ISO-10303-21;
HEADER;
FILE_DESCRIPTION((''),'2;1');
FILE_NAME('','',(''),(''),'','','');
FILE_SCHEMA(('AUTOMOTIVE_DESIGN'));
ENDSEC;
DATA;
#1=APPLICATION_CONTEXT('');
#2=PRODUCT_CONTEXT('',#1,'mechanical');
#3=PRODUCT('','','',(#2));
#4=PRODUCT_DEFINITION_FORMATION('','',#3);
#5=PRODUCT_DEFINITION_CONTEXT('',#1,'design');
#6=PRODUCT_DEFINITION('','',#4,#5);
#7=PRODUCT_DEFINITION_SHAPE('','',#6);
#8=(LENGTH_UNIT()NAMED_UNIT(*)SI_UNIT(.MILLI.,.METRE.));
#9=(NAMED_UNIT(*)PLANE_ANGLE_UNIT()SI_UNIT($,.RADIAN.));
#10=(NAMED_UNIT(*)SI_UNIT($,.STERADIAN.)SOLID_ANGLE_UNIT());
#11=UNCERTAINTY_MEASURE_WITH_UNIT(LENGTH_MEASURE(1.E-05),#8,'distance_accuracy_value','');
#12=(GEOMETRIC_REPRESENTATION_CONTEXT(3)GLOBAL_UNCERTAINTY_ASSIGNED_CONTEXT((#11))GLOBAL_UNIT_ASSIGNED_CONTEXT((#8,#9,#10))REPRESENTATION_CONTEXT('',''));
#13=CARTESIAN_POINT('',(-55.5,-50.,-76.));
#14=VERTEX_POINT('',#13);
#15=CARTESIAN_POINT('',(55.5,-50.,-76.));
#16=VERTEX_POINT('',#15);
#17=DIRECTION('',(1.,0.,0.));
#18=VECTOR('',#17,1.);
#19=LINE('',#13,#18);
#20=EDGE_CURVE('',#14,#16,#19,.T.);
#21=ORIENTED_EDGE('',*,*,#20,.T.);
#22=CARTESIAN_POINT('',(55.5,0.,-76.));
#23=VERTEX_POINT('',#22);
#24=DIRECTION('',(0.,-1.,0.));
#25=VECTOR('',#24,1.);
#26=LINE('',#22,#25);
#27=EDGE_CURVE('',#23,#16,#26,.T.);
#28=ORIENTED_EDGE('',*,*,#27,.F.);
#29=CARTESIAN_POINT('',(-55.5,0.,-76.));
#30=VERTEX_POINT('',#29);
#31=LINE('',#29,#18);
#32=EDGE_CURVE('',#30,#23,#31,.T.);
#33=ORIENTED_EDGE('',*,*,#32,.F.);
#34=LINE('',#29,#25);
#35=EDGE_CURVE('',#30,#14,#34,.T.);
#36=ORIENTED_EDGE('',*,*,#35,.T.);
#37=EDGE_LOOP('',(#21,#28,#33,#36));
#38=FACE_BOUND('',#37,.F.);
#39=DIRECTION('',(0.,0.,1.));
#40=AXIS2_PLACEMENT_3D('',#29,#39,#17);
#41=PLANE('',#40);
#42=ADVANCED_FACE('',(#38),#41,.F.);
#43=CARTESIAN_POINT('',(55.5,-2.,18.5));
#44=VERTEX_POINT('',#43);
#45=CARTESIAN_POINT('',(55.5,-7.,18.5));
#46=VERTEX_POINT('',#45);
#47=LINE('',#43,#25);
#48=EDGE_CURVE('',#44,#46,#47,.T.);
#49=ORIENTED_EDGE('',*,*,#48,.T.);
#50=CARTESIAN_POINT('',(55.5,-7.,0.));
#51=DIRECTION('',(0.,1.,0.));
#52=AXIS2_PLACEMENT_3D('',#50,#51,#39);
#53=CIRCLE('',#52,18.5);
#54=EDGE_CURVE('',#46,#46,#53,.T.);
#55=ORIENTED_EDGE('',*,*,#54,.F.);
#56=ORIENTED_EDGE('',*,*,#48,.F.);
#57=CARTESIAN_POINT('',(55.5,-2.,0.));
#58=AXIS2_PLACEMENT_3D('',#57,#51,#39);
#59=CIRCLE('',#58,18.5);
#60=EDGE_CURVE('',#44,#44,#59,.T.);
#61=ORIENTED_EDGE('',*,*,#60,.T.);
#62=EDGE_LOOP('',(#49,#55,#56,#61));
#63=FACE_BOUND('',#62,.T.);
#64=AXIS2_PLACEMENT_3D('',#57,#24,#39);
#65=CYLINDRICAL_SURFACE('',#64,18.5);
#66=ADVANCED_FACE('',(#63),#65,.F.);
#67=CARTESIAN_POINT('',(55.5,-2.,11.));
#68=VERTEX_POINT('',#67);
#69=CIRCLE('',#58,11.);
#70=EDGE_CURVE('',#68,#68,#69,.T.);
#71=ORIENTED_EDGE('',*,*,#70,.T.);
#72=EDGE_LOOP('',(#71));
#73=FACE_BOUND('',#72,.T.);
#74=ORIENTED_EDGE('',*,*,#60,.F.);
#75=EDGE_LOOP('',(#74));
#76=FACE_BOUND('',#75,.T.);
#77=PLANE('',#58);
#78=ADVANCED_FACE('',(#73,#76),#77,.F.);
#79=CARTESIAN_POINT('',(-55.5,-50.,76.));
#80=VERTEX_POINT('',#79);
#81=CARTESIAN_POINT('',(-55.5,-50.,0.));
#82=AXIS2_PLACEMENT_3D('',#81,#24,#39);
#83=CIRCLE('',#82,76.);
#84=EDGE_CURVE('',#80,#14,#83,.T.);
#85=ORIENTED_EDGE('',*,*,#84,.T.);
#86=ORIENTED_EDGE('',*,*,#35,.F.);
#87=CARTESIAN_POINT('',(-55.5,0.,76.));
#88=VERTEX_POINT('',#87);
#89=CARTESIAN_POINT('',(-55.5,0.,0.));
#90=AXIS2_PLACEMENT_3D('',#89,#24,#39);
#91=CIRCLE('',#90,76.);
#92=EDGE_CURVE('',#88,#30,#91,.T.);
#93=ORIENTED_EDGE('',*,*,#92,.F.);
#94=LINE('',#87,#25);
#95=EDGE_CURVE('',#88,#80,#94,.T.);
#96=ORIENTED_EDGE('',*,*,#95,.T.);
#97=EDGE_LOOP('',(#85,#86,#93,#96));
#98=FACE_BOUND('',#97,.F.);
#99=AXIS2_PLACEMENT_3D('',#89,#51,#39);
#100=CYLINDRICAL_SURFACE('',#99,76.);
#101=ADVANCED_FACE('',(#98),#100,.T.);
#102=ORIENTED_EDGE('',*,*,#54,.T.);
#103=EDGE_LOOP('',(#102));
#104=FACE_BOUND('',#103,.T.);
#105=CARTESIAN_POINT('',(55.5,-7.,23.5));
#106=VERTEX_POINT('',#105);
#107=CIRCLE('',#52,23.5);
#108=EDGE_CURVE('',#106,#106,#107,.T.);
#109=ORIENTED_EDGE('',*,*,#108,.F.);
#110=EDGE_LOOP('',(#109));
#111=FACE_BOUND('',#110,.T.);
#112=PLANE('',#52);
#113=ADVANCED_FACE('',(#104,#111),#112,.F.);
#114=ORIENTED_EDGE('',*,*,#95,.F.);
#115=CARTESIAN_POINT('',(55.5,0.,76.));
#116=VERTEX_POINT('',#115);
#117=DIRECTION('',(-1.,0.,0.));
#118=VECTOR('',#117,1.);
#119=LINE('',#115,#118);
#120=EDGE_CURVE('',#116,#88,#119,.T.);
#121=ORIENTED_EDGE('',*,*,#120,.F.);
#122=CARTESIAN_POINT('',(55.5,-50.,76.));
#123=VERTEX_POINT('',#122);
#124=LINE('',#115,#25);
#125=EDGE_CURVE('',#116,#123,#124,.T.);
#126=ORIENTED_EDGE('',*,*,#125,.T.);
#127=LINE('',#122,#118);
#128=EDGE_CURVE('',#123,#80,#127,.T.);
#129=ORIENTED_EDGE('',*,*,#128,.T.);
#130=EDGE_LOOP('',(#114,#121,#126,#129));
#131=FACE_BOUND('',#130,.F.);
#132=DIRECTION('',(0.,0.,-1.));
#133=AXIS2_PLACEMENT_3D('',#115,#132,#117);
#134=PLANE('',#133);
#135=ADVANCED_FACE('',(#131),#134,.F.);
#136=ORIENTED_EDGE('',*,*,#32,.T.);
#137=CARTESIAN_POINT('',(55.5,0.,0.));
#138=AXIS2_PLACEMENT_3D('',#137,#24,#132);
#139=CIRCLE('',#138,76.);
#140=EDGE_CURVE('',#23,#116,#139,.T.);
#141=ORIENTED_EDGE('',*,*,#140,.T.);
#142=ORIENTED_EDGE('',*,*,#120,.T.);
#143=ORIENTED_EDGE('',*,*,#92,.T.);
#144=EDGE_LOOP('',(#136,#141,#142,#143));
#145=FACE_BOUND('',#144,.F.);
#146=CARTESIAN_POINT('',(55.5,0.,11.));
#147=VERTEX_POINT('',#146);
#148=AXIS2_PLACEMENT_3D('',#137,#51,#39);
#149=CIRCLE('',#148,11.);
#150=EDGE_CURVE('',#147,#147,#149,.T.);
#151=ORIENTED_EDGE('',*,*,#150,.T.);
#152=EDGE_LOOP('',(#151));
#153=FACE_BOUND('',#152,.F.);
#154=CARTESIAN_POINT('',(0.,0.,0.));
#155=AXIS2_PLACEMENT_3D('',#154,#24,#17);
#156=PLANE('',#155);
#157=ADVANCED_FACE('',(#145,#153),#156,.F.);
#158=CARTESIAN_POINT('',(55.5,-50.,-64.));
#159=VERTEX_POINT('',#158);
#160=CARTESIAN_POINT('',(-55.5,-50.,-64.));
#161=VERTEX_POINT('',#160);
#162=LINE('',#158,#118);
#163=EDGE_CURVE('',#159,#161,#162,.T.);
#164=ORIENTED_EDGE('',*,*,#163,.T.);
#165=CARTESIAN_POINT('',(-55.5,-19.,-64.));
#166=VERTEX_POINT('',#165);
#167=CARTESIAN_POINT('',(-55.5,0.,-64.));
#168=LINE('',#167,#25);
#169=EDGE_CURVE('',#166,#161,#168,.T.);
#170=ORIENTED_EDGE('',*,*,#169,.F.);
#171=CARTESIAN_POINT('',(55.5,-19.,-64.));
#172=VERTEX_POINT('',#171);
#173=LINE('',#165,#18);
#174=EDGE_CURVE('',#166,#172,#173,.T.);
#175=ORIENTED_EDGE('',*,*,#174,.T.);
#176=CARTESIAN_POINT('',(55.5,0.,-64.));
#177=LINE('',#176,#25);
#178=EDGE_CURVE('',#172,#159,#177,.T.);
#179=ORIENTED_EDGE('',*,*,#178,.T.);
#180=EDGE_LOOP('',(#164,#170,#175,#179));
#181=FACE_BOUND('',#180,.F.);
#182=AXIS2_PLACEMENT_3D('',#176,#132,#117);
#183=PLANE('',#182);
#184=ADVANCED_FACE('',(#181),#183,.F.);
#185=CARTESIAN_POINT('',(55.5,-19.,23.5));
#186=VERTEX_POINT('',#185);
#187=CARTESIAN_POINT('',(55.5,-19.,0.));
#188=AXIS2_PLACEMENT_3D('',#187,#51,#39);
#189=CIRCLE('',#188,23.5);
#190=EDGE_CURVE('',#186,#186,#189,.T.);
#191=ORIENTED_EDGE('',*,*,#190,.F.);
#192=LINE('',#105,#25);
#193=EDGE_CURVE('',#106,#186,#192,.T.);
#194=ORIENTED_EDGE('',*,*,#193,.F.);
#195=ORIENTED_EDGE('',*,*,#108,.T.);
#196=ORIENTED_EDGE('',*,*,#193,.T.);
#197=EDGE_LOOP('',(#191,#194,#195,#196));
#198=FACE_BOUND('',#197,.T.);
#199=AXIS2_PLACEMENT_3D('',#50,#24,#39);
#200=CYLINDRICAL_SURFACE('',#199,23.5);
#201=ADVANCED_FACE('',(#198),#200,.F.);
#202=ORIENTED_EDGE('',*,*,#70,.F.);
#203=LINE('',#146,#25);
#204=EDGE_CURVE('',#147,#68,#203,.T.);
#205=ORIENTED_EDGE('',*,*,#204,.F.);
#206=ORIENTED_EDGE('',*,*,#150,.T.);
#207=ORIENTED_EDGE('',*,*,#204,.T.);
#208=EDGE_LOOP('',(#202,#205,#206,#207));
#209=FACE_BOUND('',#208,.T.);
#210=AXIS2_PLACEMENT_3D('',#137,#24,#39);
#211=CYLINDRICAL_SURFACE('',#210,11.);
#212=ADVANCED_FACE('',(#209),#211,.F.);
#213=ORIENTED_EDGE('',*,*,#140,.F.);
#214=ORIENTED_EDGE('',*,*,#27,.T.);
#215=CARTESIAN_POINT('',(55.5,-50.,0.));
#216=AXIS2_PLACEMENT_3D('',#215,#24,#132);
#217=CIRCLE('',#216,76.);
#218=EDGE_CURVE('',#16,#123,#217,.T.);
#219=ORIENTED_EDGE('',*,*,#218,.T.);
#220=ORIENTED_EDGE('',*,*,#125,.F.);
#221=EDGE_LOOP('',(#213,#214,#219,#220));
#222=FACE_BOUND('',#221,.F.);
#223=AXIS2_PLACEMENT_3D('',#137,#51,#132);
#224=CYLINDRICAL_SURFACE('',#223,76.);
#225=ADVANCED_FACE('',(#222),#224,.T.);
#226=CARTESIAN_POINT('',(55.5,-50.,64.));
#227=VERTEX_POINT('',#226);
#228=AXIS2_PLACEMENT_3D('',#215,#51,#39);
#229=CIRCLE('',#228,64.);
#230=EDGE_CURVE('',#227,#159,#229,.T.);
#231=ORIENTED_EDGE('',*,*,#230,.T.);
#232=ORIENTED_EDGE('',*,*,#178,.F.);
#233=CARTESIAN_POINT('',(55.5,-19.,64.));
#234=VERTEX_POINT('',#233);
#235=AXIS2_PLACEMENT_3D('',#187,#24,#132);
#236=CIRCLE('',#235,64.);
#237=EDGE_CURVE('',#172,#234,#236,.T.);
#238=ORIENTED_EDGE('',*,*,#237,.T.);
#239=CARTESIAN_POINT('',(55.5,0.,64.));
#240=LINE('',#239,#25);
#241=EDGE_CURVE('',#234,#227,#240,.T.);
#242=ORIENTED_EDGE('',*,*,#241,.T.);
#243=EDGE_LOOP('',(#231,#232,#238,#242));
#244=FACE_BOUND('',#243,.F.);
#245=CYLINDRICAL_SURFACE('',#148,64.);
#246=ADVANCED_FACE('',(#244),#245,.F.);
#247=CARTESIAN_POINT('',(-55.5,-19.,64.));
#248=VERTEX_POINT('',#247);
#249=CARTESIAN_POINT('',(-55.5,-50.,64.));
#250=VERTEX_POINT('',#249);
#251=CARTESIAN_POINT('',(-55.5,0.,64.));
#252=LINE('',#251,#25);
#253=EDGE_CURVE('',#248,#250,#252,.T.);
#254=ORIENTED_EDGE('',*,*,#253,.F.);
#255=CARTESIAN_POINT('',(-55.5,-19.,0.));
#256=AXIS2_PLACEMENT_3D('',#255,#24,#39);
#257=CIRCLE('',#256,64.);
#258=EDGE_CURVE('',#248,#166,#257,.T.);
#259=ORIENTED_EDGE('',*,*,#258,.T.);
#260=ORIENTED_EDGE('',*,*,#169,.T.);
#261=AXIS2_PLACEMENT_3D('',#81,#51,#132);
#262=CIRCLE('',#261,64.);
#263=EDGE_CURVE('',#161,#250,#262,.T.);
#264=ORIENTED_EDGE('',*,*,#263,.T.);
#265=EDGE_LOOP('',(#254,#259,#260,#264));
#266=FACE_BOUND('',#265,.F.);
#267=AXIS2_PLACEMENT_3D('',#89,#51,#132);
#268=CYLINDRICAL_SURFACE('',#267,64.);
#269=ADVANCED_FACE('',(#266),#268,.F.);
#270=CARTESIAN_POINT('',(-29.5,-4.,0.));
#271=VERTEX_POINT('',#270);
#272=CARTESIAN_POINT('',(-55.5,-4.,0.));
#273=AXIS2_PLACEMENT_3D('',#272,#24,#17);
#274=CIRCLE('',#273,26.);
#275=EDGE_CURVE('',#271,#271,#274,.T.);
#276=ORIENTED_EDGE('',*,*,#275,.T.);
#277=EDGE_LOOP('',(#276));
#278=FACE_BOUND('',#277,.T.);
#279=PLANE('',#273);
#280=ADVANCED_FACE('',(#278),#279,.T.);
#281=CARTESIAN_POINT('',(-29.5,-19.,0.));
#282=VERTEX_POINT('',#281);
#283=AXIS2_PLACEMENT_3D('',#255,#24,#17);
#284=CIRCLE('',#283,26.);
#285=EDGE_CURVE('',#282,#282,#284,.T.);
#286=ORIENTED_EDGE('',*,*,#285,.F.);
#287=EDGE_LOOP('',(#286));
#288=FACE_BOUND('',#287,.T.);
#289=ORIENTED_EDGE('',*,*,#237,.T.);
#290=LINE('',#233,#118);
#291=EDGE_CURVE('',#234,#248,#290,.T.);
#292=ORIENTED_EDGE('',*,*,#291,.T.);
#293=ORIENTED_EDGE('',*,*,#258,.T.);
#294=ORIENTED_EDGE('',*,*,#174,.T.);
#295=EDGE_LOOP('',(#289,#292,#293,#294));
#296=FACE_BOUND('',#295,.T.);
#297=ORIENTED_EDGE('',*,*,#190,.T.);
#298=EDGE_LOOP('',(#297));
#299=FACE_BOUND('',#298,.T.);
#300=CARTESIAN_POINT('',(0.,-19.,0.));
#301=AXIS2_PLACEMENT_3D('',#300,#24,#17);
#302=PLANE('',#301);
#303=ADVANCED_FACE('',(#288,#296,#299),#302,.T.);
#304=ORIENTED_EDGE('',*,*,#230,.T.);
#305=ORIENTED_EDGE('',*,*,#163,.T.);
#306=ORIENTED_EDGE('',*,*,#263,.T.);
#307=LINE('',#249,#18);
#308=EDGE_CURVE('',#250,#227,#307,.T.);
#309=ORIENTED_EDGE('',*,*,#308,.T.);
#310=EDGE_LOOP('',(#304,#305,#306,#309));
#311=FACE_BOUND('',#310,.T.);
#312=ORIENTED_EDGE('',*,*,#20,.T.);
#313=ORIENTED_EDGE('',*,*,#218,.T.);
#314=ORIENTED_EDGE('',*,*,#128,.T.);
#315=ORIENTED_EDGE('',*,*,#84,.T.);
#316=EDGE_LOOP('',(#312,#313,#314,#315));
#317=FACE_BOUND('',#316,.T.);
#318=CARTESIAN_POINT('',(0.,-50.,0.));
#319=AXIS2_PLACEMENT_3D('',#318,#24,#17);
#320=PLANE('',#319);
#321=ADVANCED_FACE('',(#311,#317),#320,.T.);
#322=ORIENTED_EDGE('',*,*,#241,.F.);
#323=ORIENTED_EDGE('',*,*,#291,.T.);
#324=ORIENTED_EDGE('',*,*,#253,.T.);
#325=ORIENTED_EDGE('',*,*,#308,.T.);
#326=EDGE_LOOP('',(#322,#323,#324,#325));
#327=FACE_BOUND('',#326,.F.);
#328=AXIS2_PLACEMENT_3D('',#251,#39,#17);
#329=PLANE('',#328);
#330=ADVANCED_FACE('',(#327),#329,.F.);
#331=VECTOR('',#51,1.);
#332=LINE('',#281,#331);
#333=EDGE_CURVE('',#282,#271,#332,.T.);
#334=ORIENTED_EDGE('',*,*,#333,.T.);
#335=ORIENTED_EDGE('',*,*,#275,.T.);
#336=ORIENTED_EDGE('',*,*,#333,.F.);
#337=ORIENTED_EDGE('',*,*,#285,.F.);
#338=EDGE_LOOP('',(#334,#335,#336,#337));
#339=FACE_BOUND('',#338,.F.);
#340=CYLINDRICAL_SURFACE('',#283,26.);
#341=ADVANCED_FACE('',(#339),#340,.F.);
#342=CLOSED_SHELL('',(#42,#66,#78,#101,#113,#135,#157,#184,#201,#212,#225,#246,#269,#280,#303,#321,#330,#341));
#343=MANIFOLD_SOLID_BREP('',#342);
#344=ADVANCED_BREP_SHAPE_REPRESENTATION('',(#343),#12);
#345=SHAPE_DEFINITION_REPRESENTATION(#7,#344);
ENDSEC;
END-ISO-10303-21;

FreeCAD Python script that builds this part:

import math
import FreeCAD as App
import Part
import Sketcher


def add_polygon(sketch, points):
    """Adds a closed chain of lines whose ends are joined by coincident constraints."""
    first, n = sketch.GeometryCount, len(points)
    for a, b in zip(points, points[1:] + points[:1]):
        sketch.addGeometry(Part.LineSegment(App.Vector(*a, 0), App.Vector(*b, 0)), False)
    for i in range(n):
        sketch.addConstraint(Sketcher.Constraint("Coincident", first + i, 2, first + (i + 1) % n, 1))

doc = App.newDocument("Part")
params = doc.addObject("Spreadsheet::Sheet", "Params")
for row, (alias, value) in enumerate([
    ("sketch1_radius", "76 mm"),
    ("sketch1_radius2", "64 mm"),
    ("sketch1_width", "111 mm"),
    ("pad1_length", "50 mm"),
    ("sketch2_radius", "64 mm"),
    ("sketch2_width", "111 mm"),
    ("pad2_length", "19 mm"),
    ("sketch3_diameter", "52 mm"),
    ("pocket1_length", "15 mm"),
    ("sketch4_width", "2 mm"),
    ("sketch4_width2", "5 mm"),
    ("sketch4_width3", "12 mm"),
    ("sketch4_height", "11 mm"),
    ("sketch4_height2", "7.5 mm"),
    ("groove_angle", "360 deg"),
], start=1):
    params.set(f"A{row}", alias)
    params.set(f"B{row}", "=" + value)
    params.setAlias(f"B{row}", alias)

body = doc.addObject("PartDesign::Body", "Body")

sketch1 = body.newObject("Sketcher::SketchObject", "Sketch")
sketch1.AttachmentSupport = (doc.getObject("XZ_Plane"), [""])
sketch1.MapMode = "FlatFace"
sketch1.addGeometry([
    Part.LineSegment(App.Vector(-55.5, -76, 0), App.Vector(55.5, -76, 0)),
    Part.ArcOfCircle(Part.Circle(App.Vector(55.5, 0, 0), App.Vector(0, 0, 1), 76), math.radians(-90), math.radians(90)),
    Part.LineSegment(App.Vector(55.5, 76, 0), App.Vector(-55.5, 76, 0)),
    Part.ArcOfCircle(Part.Circle(App.Vector(-55.5, 0, 0), App.Vector(0, 0, 1), 76), math.radians(90), math.radians(270)),
    Part.LineSegment(App.Vector(55.5, -64, 0), App.Vector(-55.5, -64, 0)),
    Part.ArcOfCircle(Part.Circle(App.Vector(-55.5, 0, 0), App.Vector(0, 0, 1), 64), math.radians(90), math.radians(270)),
    Part.LineSegment(App.Vector(-55.5, 64, 0), App.Vector(55.5, 64, 0)),
    Part.ArcOfCircle(Part.Circle(App.Vector(55.5, 0, 0), App.Vector(0, 0, 1), 64), math.radians(-90), math.radians(90)),
], False)
sketch1.addConstraint([
    Sketcher.Constraint("Tangent", 0, 2, 1, 1),
    Sketcher.Constraint("Tangent", 1, 2, 2, 1),
    Sketcher.Constraint("Tangent", 2, 2, 3, 1),
    Sketcher.Constraint("Tangent", 3, 2, 0, 1),
    Sketcher.Constraint("Tangent", 4, 2, 5, 2),
    Sketcher.Constraint("Tangent", 5, 1, 6, 1),
    Sketcher.Constraint("Tangent", 6, 2, 7, 2),
    Sketcher.Constraint("Tangent", 7, 1, 4, 1),
    Sketcher.Constraint("Horizontal", 0),
    Sketcher.Constraint("Horizontal", 2),
    Sketcher.Constraint("Horizontal", 4),
    Sketcher.Constraint("Horizontal", 6),
    Sketcher.Constraint("Coincident", 5, 3, 3, 3),
    Sketcher.Constraint("Symmetric", 1, 3, 3, 3, -1, 1),
    Sketcher.Constraint("Vertical", 7, 3, 0, 2),
    Sketcher.Constraint("Radius", 1, 76.0),
    Sketcher.Constraint("Radius", 5, 64.0),
    Sketcher.Constraint("DistanceX", 0, 1, 0, 2, 111.0),
])
sketch1.setExpression("Constraints[15]", "Params.sketch1_radius")
sketch1.setExpression("Constraints[16]", "Params.sketch1_radius2")
sketch1.setExpression("Constraints[17]", "Params.sketch1_width")
pad1 = body.newObject("PartDesign::Pad", "Pad")
pad1.Profile = sketch1
pad1.setExpression("Length", "Params.pad1_length")

sketch2 = body.newObject("Sketcher::SketchObject", "Sketch001")
sketch2.AttachmentSupport = (doc.getObject("XZ_Plane"), [""])
sketch2.MapMode = "FlatFace"
sketch2.addGeometry([
    Part.LineSegment(App.Vector(55.5, 64, 0), App.Vector(-55.5, 64, 0)),
    Part.ArcOfCircle(Part.Circle(App.Vector(-55.5, 0, 0), App.Vector(0, 0, 1), 64), math.radians(90), math.radians(270)),
    Part.LineSegment(App.Vector(-55.5, -64, 0), App.Vector(55.5, -64, 0)),
    Part.ArcOfCircle(Part.Circle(App.Vector(55.5, 0, 0), App.Vector(0, 0, 1), 64), math.radians(-90), math.radians(90)),
], False)
sketch2.addConstraint([
    Sketcher.Constraint("Tangent", 0, 2, 1, 1),
    Sketcher.Constraint("Tangent", 1, 2, 2, 1),
    Sketcher.Constraint("Tangent", 2, 2, 3, 1),
    Sketcher.Constraint("Tangent", 3, 2, 0, 1),
    Sketcher.Constraint("Horizontal", 0),
    Sketcher.Constraint("Horizontal", 2),
    Sketcher.Constraint("Symmetric", 1, 3, 3, 3, -1, 1),
    Sketcher.Constraint("Radius", 1, 64.0),
    Sketcher.Constraint("DistanceX", 0, 2, 0, 1, 111.0),
])
sketch2.setExpression("Constraints[7]", "Params.sketch2_radius")
sketch2.setExpression("Constraints[8]", "Params.sketch2_width")
pad2 = body.newObject("PartDesign::Pad", "Pad001")
pad2.Profile = sketch2
pad2.setExpression("Length", "Params.pad2_length")

sketch3 = body.newObject("Sketcher::SketchObject", "Sketch002")
sketch3.AttachmentSupport = (doc.getObject("XZ_Plane"), [""])
sketch3.MapMode = "FlatFace"
sketch3.AttachmentOffset = App.Placement(App.Vector(0, 0, 19), App.Rotation())
sketch3.addGeometry(Part.Circle(App.Vector(-55.5, 0, 0), App.Vector(0, 0, 1), 26), False)
sketch3.addConstraint([
    Sketcher.Constraint("PointOnObject", 0, 3, -1),
    Sketcher.Constraint("Diameter", 0, 52.0),
    Sketcher.Constraint("DistanceX", 0, 3, -1, 1, 55.5),
])
sketch3.setExpression("Constraints[1]", "Params.sketch3_diameter")
pocket1 = body.newObject("PartDesign::Pocket", "Pocket")
pocket1.Profile = sketch3
pocket1.setExpression("Length", "Params.pocket1_length")

sketch4 = body.newObject("Sketcher::SketchObject", "Sketch003")
sketch4.AttachmentSupport = (doc.getObject("YZ_Plane"), [""])
sketch4.MapMode = "FlatFace"
sketch4.AttachmentOffset = App.Placement(App.Vector(0, 0, 55.5), App.Rotation())
add_polygon(sketch4, [(0, 0), (0, 11), (-2, 11), (-2, 18.5), (-7, 18.5), (-7, 23.5), (-19, 23.5), (-19, 0)])
sketch4.addConstraint([
    Sketcher.Constraint("Vertical", 0),
    Sketcher.Constraint("Horizontal", 1),
    Sketcher.Constraint("Vertical", 2),
    Sketcher.Constraint("Horizontal", 3),
    Sketcher.Constraint("Vertical", 4),
    Sketcher.Constraint("Horizontal", 5),
    Sketcher.Constraint("Vertical", 6),
    Sketcher.Constraint("Horizontal", 7),
    Sketcher.Constraint("Coincident", 7, 2, -1, 1),
    Sketcher.Constraint("Equal", 3, 4),
    Sketcher.Constraint("DistanceX", 1, 2, 1, 1, 2.0),
    Sketcher.Constraint("DistanceX", 3, 2, 3, 1, 5.0),
    Sketcher.Constraint("DistanceX", 5, 2, 5, 1, 12.0),
    Sketcher.Constraint("DistanceY", 0, 1, 0, 2, 11.0),
    Sketcher.Constraint("DistanceY", 2, 1, 2, 2, 7.5),
])
sketch4.setExpression("Constraints[18]", "Params.sketch4_width")
sketch4.setExpression("Constraints[19]", "Params.sketch4_width2")
sketch4.setExpression("Constraints[20]", "Params.sketch4_width3")
sketch4.setExpression("Constraints[21]", "Params.sketch4_height")
sketch4.setExpression("Constraints[22]", "Params.sketch4_height2")
groove = body.newObject("PartDesign::Groove", "Groove")
groove.Profile = sketch4
groove.ReferenceAxis = (sketch4, ["H_Axis"])
groove.setExpression("Angle", "Params.groove_angle")

doc.recompute()
